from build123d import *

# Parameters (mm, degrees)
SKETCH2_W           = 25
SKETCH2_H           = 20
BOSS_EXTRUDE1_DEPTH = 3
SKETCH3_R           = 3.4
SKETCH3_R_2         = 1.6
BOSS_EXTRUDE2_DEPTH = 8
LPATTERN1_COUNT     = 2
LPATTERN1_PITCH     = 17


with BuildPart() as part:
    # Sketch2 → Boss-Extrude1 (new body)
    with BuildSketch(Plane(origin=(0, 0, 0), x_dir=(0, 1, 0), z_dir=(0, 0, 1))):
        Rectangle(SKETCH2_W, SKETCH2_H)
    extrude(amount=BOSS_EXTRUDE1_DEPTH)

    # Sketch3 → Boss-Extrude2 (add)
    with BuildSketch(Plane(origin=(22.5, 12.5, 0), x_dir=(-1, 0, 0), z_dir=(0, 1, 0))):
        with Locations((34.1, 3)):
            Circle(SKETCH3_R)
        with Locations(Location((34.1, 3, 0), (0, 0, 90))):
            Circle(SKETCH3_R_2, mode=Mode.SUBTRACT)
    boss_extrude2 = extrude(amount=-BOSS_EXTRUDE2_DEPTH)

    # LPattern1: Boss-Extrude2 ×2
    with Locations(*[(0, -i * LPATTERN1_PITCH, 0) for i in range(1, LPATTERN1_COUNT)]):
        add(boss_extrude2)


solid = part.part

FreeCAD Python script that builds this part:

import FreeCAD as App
import Part
import Sketcher

V = App.Vector
Q = App.Units.Quantity

doc = App.newDocument("Part")
body = doc.addObject("PartDesign::Body", "Body")

# Sketch on XY plane
sketch1 = body.newObject("Sketcher::SketchObject", "Sketch")
sketch1.AttachmentSupport = (doc.getObject("XY_Plane"), [""])
sketch1.MapMode = "FlatFace"
sketch1.addGeometry(Part.LineSegment(V(-10, -12.5, 0), V(10, -12.5, 0)), False)
sketch1.addGeometry(Part.LineSegment(V(10, -12.5, 0), V(10, 12.5, 0)), False)
sketch1.addGeometry(Part.LineSegment(V(10, 12.5, 0), V(-10, 12.5, 0)), False)
sketch1.addGeometry(Part.LineSegment(V(-10, 12.5, 0), V(-10, -12.5, 0)), False)
sketch1.addConstraint(Sketcher.Constraint("Coincident", 0, 2, 1, 1))
sketch1.addConstraint(Sketcher.Constraint("Coincident", 1, 2, 2, 1))
sketch1.addConstraint(Sketcher.Constraint("Coincident", 2, 2, 3, 1))
sketch1.addConstraint(Sketcher.Constraint("Coincident", 3, 2, 0, 1))
sketch1.addConstraint(Sketcher.Constraint("Horizontal", 0))
sketch1.addConstraint(Sketcher.Constraint("Vertical", 1))
sketch1.addConstraint(Sketcher.Constraint("Horizontal", 2))
sketch1.addConstraint(Sketcher.Constraint("Vertical", 3))
sketch1.addConstraint(Sketcher.Constraint("Symmetric", 0, 2, 2, 2, -1, 1))
sketch1.addConstraint(Sketcher.Constraint("DistanceX", 0, 1, 0, 2, Q("20 mm")))
sketch1.addConstraint(Sketcher.Constraint("DistanceY", 1, 1, 1, 2, Q("25 mm")))
pad1 = body.newObject("PartDesign::Pad", "Pad")
pad1.Profile = sketch1
pad1.Length = 3

# Sketch on XZ plane
sketch2 = body.newObject("Sketcher::SketchObject", "Sketch001")
sketch2.AttachmentSupport = (doc.getObject("XZ_Plane"), [""])
sketch2.MapMode = "FlatFace"
sketch2.AttachmentOffset = App.Placement(V(0, 0, -12.5), App.Rotation())
sketch2.addGeometry(Part.Circle(V(-11.6, 3, 0), V(0, 0, 1), 3.4), False)
sketch2.addGeometry(Part.Circle(V(-11.6, 3, 0), V(0, 0, 1), 1.6), False)
sketch2.addConstraint(Sketcher.Constraint("Coincident", 1, 3, 0, 3))
sketch2.addConstraint(Sketcher.Constraint("Diameter", 0, Q("6.8 mm")))
sketch2.addConstraint(Sketcher.Constraint("Diameter", 1, Q("3.2 mm")))
sketch2.addConstraint(Sketcher.Constraint("DistanceY", -1, 1, 0, 3, Q("3 mm")))
sketch2.addConstraint(Sketcher.Constraint("DistanceX", 0, 3, -1, 1, Q("11.6 mm")))
pad2 = body.newObject("PartDesign::Pad", "Pad001")
pad2.Profile = sketch2
pad2.Length = 8
doc.recompute()

linearpattern = body.newObject("PartDesign::LinearPattern", "LinearPattern")
linearpattern.Originals = [pad2]
linearpattern.Direction = (doc.getObject("Y_Axis"), [""])
linearpattern.Mode = "offset"
linearpattern.Offset = 17
linearpattern.Occurrences = 2
linearpattern.Reversed = True
body.Tip = linearpattern

doc.recompute()
